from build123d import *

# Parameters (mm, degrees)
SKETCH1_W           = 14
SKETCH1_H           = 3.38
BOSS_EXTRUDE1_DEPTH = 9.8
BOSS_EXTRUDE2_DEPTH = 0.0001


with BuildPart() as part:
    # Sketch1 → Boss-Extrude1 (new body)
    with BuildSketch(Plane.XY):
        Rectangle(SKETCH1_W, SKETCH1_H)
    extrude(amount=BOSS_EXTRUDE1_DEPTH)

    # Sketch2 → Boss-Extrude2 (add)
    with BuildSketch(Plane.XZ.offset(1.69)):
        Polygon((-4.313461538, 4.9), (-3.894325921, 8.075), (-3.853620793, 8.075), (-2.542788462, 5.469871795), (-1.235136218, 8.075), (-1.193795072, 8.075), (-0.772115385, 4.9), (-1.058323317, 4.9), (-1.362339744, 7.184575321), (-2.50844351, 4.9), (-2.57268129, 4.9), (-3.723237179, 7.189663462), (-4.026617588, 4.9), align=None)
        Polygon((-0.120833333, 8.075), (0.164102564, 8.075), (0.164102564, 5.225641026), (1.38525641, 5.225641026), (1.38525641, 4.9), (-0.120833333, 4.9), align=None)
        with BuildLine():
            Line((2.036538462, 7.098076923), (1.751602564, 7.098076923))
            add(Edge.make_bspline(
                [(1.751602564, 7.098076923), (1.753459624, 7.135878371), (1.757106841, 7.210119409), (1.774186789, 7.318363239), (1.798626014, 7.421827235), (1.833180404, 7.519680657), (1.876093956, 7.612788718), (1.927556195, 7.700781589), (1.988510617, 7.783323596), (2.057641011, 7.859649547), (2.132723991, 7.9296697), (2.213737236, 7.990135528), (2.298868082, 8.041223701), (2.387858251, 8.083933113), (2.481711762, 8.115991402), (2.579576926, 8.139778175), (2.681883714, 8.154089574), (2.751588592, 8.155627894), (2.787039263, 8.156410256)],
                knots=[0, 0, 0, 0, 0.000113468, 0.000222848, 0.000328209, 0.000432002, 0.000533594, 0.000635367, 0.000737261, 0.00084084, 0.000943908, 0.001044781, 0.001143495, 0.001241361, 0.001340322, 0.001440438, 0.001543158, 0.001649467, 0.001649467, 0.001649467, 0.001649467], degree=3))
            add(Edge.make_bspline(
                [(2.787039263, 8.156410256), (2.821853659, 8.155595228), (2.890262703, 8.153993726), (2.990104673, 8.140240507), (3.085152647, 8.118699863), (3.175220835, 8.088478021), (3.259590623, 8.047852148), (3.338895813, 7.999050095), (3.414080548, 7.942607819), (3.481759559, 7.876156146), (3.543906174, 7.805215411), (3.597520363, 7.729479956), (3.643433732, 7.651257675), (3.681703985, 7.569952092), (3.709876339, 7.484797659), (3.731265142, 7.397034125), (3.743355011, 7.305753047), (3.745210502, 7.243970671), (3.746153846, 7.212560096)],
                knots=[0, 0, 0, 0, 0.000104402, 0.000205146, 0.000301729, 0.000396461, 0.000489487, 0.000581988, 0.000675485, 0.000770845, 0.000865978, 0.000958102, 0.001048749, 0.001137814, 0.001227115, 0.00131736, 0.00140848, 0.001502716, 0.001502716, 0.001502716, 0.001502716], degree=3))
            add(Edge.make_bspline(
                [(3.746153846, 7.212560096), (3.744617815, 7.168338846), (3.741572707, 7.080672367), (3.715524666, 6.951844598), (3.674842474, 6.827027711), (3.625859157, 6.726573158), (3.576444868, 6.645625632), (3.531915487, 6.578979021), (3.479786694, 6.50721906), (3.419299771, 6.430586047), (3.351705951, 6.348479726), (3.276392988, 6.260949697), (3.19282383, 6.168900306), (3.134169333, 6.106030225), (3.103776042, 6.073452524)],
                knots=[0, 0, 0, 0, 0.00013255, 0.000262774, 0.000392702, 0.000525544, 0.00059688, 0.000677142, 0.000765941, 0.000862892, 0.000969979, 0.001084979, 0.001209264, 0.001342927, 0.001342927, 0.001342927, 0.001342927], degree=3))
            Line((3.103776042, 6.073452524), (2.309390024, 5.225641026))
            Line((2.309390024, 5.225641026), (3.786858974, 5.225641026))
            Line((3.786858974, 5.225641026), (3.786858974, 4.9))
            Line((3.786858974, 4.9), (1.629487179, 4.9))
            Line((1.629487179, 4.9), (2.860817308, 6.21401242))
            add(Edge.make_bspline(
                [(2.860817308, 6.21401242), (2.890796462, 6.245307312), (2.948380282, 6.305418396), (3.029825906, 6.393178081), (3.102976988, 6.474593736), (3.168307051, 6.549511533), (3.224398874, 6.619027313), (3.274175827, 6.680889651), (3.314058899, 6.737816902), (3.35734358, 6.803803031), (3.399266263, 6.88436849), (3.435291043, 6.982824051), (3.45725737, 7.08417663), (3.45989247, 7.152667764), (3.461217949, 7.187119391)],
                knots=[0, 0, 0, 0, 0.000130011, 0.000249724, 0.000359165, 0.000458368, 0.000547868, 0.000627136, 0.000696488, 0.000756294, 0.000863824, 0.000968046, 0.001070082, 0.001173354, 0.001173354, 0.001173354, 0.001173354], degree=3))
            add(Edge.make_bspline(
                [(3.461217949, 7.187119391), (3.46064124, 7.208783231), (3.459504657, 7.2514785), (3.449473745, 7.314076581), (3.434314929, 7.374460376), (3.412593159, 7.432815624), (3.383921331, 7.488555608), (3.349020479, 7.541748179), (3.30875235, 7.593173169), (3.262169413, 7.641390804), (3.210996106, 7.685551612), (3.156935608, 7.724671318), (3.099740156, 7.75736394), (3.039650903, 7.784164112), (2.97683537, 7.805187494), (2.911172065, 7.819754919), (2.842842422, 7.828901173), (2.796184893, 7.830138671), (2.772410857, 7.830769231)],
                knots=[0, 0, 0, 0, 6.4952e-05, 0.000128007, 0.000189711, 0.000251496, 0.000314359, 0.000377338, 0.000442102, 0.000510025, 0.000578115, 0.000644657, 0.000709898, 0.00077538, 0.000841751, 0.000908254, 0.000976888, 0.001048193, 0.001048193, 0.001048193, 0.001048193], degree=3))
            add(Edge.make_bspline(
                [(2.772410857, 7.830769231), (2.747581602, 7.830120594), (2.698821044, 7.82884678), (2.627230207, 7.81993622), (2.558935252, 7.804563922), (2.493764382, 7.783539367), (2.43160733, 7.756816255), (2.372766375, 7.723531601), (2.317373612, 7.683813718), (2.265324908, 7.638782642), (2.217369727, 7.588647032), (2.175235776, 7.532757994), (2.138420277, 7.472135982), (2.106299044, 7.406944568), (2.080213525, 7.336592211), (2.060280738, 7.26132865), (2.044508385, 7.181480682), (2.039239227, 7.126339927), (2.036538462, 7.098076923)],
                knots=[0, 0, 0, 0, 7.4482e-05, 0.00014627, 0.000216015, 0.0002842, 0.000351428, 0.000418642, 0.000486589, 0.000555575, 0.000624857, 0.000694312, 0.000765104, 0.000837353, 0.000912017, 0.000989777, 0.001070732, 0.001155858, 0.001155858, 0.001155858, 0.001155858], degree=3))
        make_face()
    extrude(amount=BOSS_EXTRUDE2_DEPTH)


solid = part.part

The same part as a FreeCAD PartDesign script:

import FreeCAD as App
import Part
import Sketcher
from FreeCAD import Vector
Q = App.Units.Quantity

doc = App.newDocument("Part")
body = doc.addObject("PartDesign::Body", "Body")

# Sketch on XY plane
sketch1 = body.newObject("Sketcher::SketchObject", "Sketch")
sketch1.AttachmentSupport = (doc.getObject("XY_Plane"), [""])
sketch1.MapMode = "FlatFace"
sketch1.addGeometry(Part.LineSegment(Vector(-7, 1.7, 0), Vector(-7, -1.7, 0)), False)
sketch1.addGeometry(Part.LineSegment(Vector(-7, -1.7, 0), Vector(7, -1.7, 0)), False)
sketch1.addGeometry(Part.LineSegment(Vector(7, -1.7, 0), Vector(7, 1.7, 0)), False)
sketch1.addGeometry(Part.LineSegment(Vector(7, 1.7, 0), Vector(-7, 1.7, 0)), False)
sketch1.addConstraint(Sketcher.Constraint("Coincident", 0, 2, 1, 1))
sketch1.addConstraint(Sketcher.Constraint("Coincident", 1, 2, 2, 1))
sketch1.addConstraint(Sketcher.Constraint("Coincident", 2, 2, 3, 1))
sketch1.addConstraint(Sketcher.Constraint("Coincident", 3, 2, 0, 1))
sketch1.addConstraint(Sketcher.Constraint("Vertical", 0))
sketch1.addConstraint(Sketcher.Constraint("Horizontal", 1))
sketch1.addConstraint(Sketcher.Constraint("Vertical", 2))
sketch1.addConstraint(Sketcher.Constraint("Horizontal", 3))
sketch1.addConstraint(Sketcher.Constraint("Symmetric", 0, 2, 2, 2, -1, 1))
sketch1.addConstraint(Sketcher.Constraint("DistanceX", 1, 1, 1, 2, Q("14 mm")))
sketch1.addConstraint(Sketcher.Constraint("DistanceY", 0, 2, 0, 1, Q("3.38 mm")))
pad1 = body.newObject("PartDesign::Pad", "Pad")
pad1.Profile = sketch1
pad1.Length = 9.8

# Sketch on XZ plane
sketch2 = body.newObject("Sketcher::SketchObject", "Sketch001")
sketch2.AttachmentSupport = (doc.getObject("XZ_Plane"), [""])
sketch2.MapMode = "FlatFace"
sketch2.AttachmentOffset = App.Placement(Vector(0, 0, 1.69), App.Rotation())
sketch2.addGeometry(Part.LineSegment(Vector(-3.894326, 8.075, 0), Vector(-4.313462, 4.9, 0)), False)
sketch2.addGeometry(Part.LineSegment(Vector(-4.313462, 4.9, 0), Vector(-4.026618, 4.9, 0)), False)
sketch2.addGeometry(Part.LineSegment(Vector(-4.026618, 4.9, 0), Vector(-3.723237, 7.189663, 0)), False)
sketch2.addGeometry(Part.LineSegment(Vector(-3.723237, 7.189663, 0), Vector(-2.572681, 4.9, 0)), False)
sketch2.addGeometry(Part.LineSegment(Vector(-2.572681, 4.9, 0), Vector(-2.508444, 4.9, 0)), False)
sketch2.addGeometry(Part.LineSegment(Vector(-2.508444, 4.9, 0), Vector(-1.36234, 7.184575, 0)), False)
sketch2.addGeometry(Part.LineSegment(Vector(-1.36234, 7.184575, 0), Vector(-1.058323, 4.9, 0)), False)
sketch2.addGeometry(Part.LineSegment(Vector(-1.058323, 4.9, 0), Vector(-0.772115, 4.9, 0)), False)
sketch2.addGeometry(Part.LineSegment(Vector(-0.772115, 4.9, 0), Vector(-1.193795, 8.075, 0)), False)
sketch2.addGeometry(Part.LineSegment(Vector(-1.193795, 8.075, 0), Vector(-1.235136, 8.075, 0)), False)
sketch2.addGeometry(Part.LineSegment(Vector(-1.235136, 8.075, 0), Vector(-2.542788, 5.469872, 0)), False)
sketch2.addGeometry(Part.LineSegment(Vector(-2.542788, 5.469872, 0), Vector(-3.853621, 8.075, 0)), False)
sketch2.addGeometry(Part.LineSegment(Vector(-3.853621, 8.075, 0), Vector(-3.894326, 8.075, 0)), False)
sketch2.addGeometry(Part.LineSegment(Vector(0.164103, 8.075, 0), Vector(-0.120833, 8.075, 0)), False)
sketch2.addGeometry(Part.LineSegment(Vector(-0.120833, 8.075, 0), Vector(-0.120833, 4.9, 0)), False)
sketch2.addGeometry(Part.LineSegment(Vector(-0.120833, 4.9, 0), Vector(1.385256, 4.9, 0)), False)
sketch2.addGeometry(Part.LineSegment(Vector(1.385256, 4.9, 0), Vector(1.385256, 5.225641, 0)), False)
sketch2.addGeometry(Part.LineSegment(Vector(1.385256, 5.225641, 0), Vector(0.164103, 5.225641, 0)), False)
sketch2.addGeometry(Part.LineSegment(Vector(0.164103, 5.225641, 0), Vector(0.164103, 8.075, 0)), False)
sketch2.addGeometry(Part.LineSegment(Vector(1.751603, 7.098077, 0), Vector(2.036538, 7.098077, 0)), False)
sketch2.addGeometry(Part.BSplineCurve([Vector(2.772411, 7.830769, 0), Vector(2.747582, 7.830121, 0), Vector(2.698821, 7.828847, 0), Vector(2.62723, 7.819936, 0), Vector(2.558935, 7.804564, 0), Vector(2.493764, 7.783539, 0), Vector(2.431607, 7.756816, 0), Vector(2.372766, 7.723532, 0), Vector(2.317374, 7.683814, 0), Vector(2.265325, 7.638783, 0), Vector(2.21737, 7.588647, 0), Vector(2.175236, 7.532758, 0), Vector(2.13842, 7.472136, 0), Vector(2.106299, 7.406945, 0), Vector(2.080214, 7.336592, 0), Vector(2.060281, 7.261329, 0), Vector(2.044508, 7.181481, 0), Vector(2.039239, 7.12634, 0), Vector(2.036538, 7.098077, 0)], [4, 1, 1, 1, 1, 1, 1, 1, 1, 1, 1, 1, 1, 1, 1, 1, 4], [0, 0.000074482, 0.00014627, 0.000216015, 0.0002842, 0.000351428, 0.000418642, 0.000486589, 0.000555575, 0.000624857, 0.000694312, 0.000765104, 0.000837353, 0.000912017, 0.000989777, 0.001070732, 0.001155858], False, 3, [1, 1, 1, 1, 1, 1, 1, 1, 1, 1, 1, 1, 1, 1, 1, 1, 1, 1, 1], False), False)
sketch2.addGeometry(Part.BSplineCurve([Vector(3.461218, 7.187119, 0), Vector(3.460641, 7.208783, 0), Vector(3.459505, 7.251479, 0), Vector(3.449474, 7.314077, 0), Vector(3.434315, 7.37446, 0), Vector(3.412593, 7.432816, 0), Vector(3.383921, 7.488556, 0), Vector(3.34902, 7.541748, 0), Vector(3.308752, 7.593173, 0), Vector(3.262169, 7.641391, 0), Vector(3.210996, 7.685552, 0), Vector(3.156936, 7.724671, 0), Vector(3.09974, 7.757364, 0), Vector(3.039651, 7.784164, 0), Vector(2.976835, 7.805187, 0), Vector(2.911172, 7.819755, 0), Vector(2.842842, 7.828901, 0), Vector(2.796185, 7.830139, 0), Vector(2.772411, 7.830769, 0)], [4, 1, 1, 1, 1, 1, 1, 1, 1, 1, 1, 1, 1, 1, 1, 1, 4], [0, 0.000064952, 0.000128007, 0.000189711, 0.000251496, 0.000314359, 0.000377338, 0.000442102, 0.000510025, 0.000578115, 0.000644657, 0.000709898, 0.00077538, 0.000841751, 0.000908254, 0.000976888, 0.001048193], False, 3, [1, 1, 1, 1, 1, 1, 1, 1, 1, 1, 1, 1, 1, 1, 1, 1, 1, 1, 1], False), False)
sketch2.addGeometry(Part.BSplineCurve([Vector(2.860817, 6.214012, 0), Vector(2.890796, 6.245307, 0), Vector(2.94838, 6.305418, 0), Vector(3.029826, 6.393178, 0), Vector(3.102977, 6.474594, 0), Vector(3.168307, 6.549512, 0), Vector(3.224399, 6.619027, 0), Vector(3.274176, 6.68089, 0), Vector(3.314059, 6.737817, 0), Vector(3.357344, 6.803803, 0), Vector(3.399266, 6.884368, 0), Vector(3.435291, 6.982824, 0), Vector(3.457257, 7.084177, 0), Vector(3.459892, 7.152668, 0), Vector(3.461218, 7.187119, 0)], [4, 1, 1, 1, 1, 1, 1, 1, 1, 1, 1, 1, 4], [0, 0.000130011, 0.000249724, 0.000359165, 0.000458368, 0.000547868, 0.000627136, 0.000696488, 0.000756294, 0.000863824, 0.000968046, 0.001070082, 0.001173354], False, 3, [1, 1, 1, 1, 1, 1, 1, 1, 1, 1, 1, 1, 1, 1, 1], False), False)
sketch2.addGeometry(Part.LineSegment(Vector(2.860817, 6.214012, 0), Vector(1.629487, 4.9, 0)), False)
sketch2.addGeometry(Part.LineSegment(Vector(1.629487, 4.9, 0), Vector(3.786859, 4.9, 0)), False)
sketch2.addGeometry(Part.LineSegment(Vector(3.786859, 4.9, 0), Vector(3.786859, 5.225641, 0)), False)
sketch2.addGeometry(Part.LineSegment(Vector(3.786859, 5.225641, 0), Vector(2.30939, 5.225641, 0)), False)
sketch2.addGeometry(Part.LineSegment(Vector(2.30939, 5.225641, 0), Vector(3.103776, 6.073453, 0)), False)
sketch2.addGeometry(Part.BSplineCurve([Vector(3.746154, 7.21256, 0), Vector(3.744618, 7.168339, 0), Vector(3.741573, 7.080672, 0), Vector(3.715525, 6.951845, 0), Vector(3.674842, 6.827028, 0), Vector(3.625859, 6.726573, 0), Vector(3.576445, 6.645626, 0), Vector(3.531915, 6.578979, 0), Vector(3.479787, 6.507219, 0), Vector(3.4193, 6.430586, 0), Vector(3.351706, 6.34848, 0), Vector(3.276393, 6.26095, 0), Vector(3.192824, 6.1689, 0), Vector(3.134169, 6.10603, 0), Vector(3.103776, 6.073453, 0)], [4, 1, 1, 1, 1, 1, 1, 1, 1, 1, 1, 1, 4], [0, 0.00013255, 0.000262774, 0.000392702, 0.000525544, 0.00059688, 0.000677142, 0.000765941, 0.000862892, 0.000969979, 0.001084979, 0.001209264, 0.001342927], False, 3, [1, 1, 1, 1, 1, 1, 1, 1, 1, 1, 1, 1, 1, 1, 1], False), False)
sketch2.addGeometry(Part.BSplineCurve([Vector(2.787039, 8.15641, 0), Vector(2.821854, 8.155595, 0), Vector(2.890263, 8.153994, 0), Vector(2.990105, 8.140241, 0), Vector(3.085153, 8.1187, 0), Vector(3.175221, 8.088478, 0), Vector(3.259591, 8.047852, 0), Vector(3.338896, 7.99905, 0), Vector(3.414081, 7.942608, 0), Vector(3.48176, 7.876156, 0), Vector(3.543906, 7.805215, 0), Vector(3.59752, 7.72948, 0), Vector(3.643434, 7.651258, 0), Vector(3.681704, 7.569952, 0), Vector(3.709876, 7.484798, 0), Vector(3.731265, 7.397034, 0), Vector(3.743355, 7.305753, 0), Vector(3.745211, 7.243971, 0), Vector(3.746154, 7.21256, 0)], [4, 1, 1, 1, 1, 1, 1, 1, 1, 1, 1, 1, 1, 1, 1, 1, 4], [0, 0.000104402, 0.000205146, 0.000301729, 0.000396461, 0.000489487, 0.000581988, 0.000675485, 0.000770845, 0.000865978, 0.000958102, 0.001048749, 0.001137814, 0.001227115, 0.00131736, 0.00140848, 0.001502716], False, 3, [1, 1, 1, 1, 1, 1, 1, 1, 1, 1, 1, 1, 1, 1, 1, 1, 1, 1, 1], False), False)
sketch2.addGeometry(Part.BSplineCurve([Vector(1.751603, 7.098077, 0), Vector(1.75346, 7.135878, 0), Vector(1.757107, 7.210119, 0), Vector(1.774187, 7.318363, 0), Vector(1.798626, 7.421827, 0), Vector(1.83318, 7.519681, 0), Vector(1.876094, 7.612789, 0), Vector(1.927556, 7.700782, 0), Vector(1.988511, 7.783324, 0), Vector(2.057641, 7.85965, 0), Vector(2.132724, 7.92967, 0), Vector(2.213737, 7.990136, 0), Vector(2.298868, 8.041224, 0), Vector(2.387858, 8.083933, 0), Vector(2.481712, 8.115991, 0), Vector(2.579577, 8.139778, 0), Vector(2.681884, 8.15409, 0), Vector(2.751589, 8.155628, 0), Vector(2.787039, 8.15641, 0)], [4, 1, 1, 1, 1, 1, 1, 1, 1, 1, 1, 1, 1, 1, 1, 1, 4], [0, 0.000113468, 0.000222848, 0.000328209, 0.000432002, 0.000533594, 0.000635367, 0.000737261, 0.00084084, 0.000943908, 0.001044781, 0.001143495, 0.001241361, 0.001340322, 0.001440438, 0.001543158, 0.001649467], False, 3, [1, 1, 1, 1, 1, 1, 1, 1, 1, 1, 1, 1, 1, 1, 1, 1, 1, 1, 1], False), False)
sketch2.addConstraint(Sketcher.Constraint("Block", 20))
sketch2.addConstraint(Sketcher.Constraint("Block", 21))
sketch2.addConstraint(Sketcher.Constraint("Block", 22))
sketch2.addConstraint(Sketcher.Constraint("Block", 28))
sketch2.addConstraint(Sketcher.Constraint("Block", 29))
sketch2.addConstraint(Sketcher.Constraint("Block", 30))
sketch2.addConstraint(Sketcher.Constraint("Coincident", 0, 2, 1, 1))
sketch2.addConstraint(Sketcher.Constraint("Coincident", 1, 2, 2, 1))
sketch2.addConstraint(Sketcher.Constraint("Coincident", 2, 2, 3, 1))
sketch2.addConstraint(Sketcher.Constraint("Coincident", 3, 2, 4, 1))
sketch2.addConstraint(Sketcher.Constraint("Coincident", 4, 2, 5, 1))
sketch2.addConstraint(Sketcher.Constraint("Coincident", 5, 2, 6, 1))
sketch2.addConstraint(Sketcher.Constraint("Coincident", 6, 2, 7, 1))
sketch2.addConstraint(Sketcher.Constraint("Coincident", 7, 2, 8, 1))
sketch2.addConstraint(Sketcher.Constraint("Coincident", 8, 2, 9, 1))
sketch2.addConstraint(Sketcher.Constraint("Coincident", 9, 2, 10, 1))
sketch2.addConstraint(Sketcher.Constraint("Coincident", 10, 2, 11, 1))
sketch2.addConstraint(Sketcher.Constraint("Coincident", 11, 2, 12, 1))
sketch2.addConstraint(Sketcher.Constraint("Coincident", 12, 2, 0, 1))
sketch2.addConstraint(Sketcher.Constraint("Coincident", 13, 2, 14, 1))
sketch2.addConstraint(Sketcher.Constraint("Coincident", 14, 2, 15, 1))
sketch2.addConstraint(Sketcher.Constraint("Coincident", 15, 2, 16, 1))
sketch2.addConstraint(Sketcher.Constraint("Coincident", 16, 2, 17, 1))
sketch2.addConstraint(Sketcher.Constraint("Coincident", 17, 2, 18, 1))
sketch2.addConstraint(Sketcher.Constraint("Coincident", 18, 2, 13, 1))
sketch2.addConstraint(Sketcher.Constraint("Coincident", 19, 2, 20, 2))
sketch2.addConstraint(Sketcher.Constraint("Coincident", 22, 1, 23, 1))
sketch2.addConstraint(Sketcher.Constraint("Coincident", 23, 2, 24, 1))
sketch2.addConstraint(Sketcher.Constraint("Coincident", 24, 2, 25, 1))
sketch2.addConstraint(Sketcher.Constraint("Coincident", 25, 2, 26, 1))
sketch2.addConstraint(Sketcher.Constraint("Coincident", 26, 2, 27, 1))
sketch2.addConstraint(Sketcher.Constraint("Coincident", 27, 2, 28, 2))
sketch2.addConstraint(Sketcher.Constraint("Coincident", 30, 1, 19, 1))
sketch2.addConstraint(Sketcher.Constraint("Horizontal", 1))
sketch2.addConstraint(Sketcher.Constraint("Horizontal", 4))
sketch2.addConstraint(Sketcher.Constraint("Horizontal", 7))
sketch2.addConstraint(Sketcher.Constraint("Horizontal", 9))
sketch2.addConstraint(Sketcher.Constraint("Horizontal", 12))
sketch2.addConstraint(Sketcher.Constraint("Horizontal", 13))
sketch2.addConstraint(Sketcher.Constraint("Vertical", 14))
sketch2.addConstraint(Sketcher.Constraint("Horizontal", 15))
sketch2.addConstraint(Sketcher.Constraint("Vertical", 16))
sketch2.addConstraint(Sketcher.Constraint("Horizontal", 17))
sketch2.addConstraint(Sketcher.Constraint("Vertical", 18))
sketch2.addConstraint(Sketcher.Constraint("Horizontal", 24))
sketch2.addConstraint(Sketcher.Constraint("Vertical", 25))
sketch2.addConstraint(Sketcher.Constraint("Horizontal", 26))
sketch2.addConstraint(Sketcher.Constraint("Horizontal", 1, 2, 3, 2))
sketch2.addConstraint(Sketcher.Constraint("Horizontal", 4, 2, 6, 2))
sketch2.addConstraint(Sketcher.Constraint("Horizontal", 9, 2, 11, 2))
sketch2.addConstraint(Sketcher.Constraint("Horizontal", 12, 2, 13, 2))
sketch2.addConstraint(Sketcher.Constraint("Horizontal", 7, 2, 14, 2))
sketch2.addConstraint(Sketcher.Constraint("Horizontal", 15, 2, 23, 2))
sketch2.addConstraint(Sketcher.Constraint("Horizontal", 17, 2, 25, 2))
sketch2.addConstraint(Sketcher.Constraint("Equal", 13, 19))
sketch2.addConstraint(Sketcher.Constraint("DistanceY", -1, 1, 0, 2, Q("4.9 mm")))
sketch2.addConstraint(Sketcher.Constraint("Angle", 6, Q("-82.419985 deg")))
sketch2.addConstraint(Sketcher.Constraint("DistanceY", 14, 2, 14, 1, Q("3.175 mm")))
sketch2.addConstraint(Sketcher.Constraint("Distance", 10, Q("2.914901 mm")))
sketch2.addConstraint(Sketcher.Constraint("DistanceX", 9, 2, 9, 1, Q("0.041341 mm")))
sketch2.addConstraint(Sketcher.Constraint("DistanceX", 15, 1, 15, 2, Q("1.50609 mm")))
sketch2.addConstraint(Sketcher.Constraint("DistanceX", 24, 1, 24, 2, Q("2.157372 mm")))
sketch2.addConstraint(Sketcher.Constraint("DistanceX", 26, 2, 26, 1, Q("1.477469 mm")))
sketch2.addConstraint(Sketcher.Constraint("DistanceY", 16, 1, 16, 2, Q("0.325641 mm")))
sketch2.addConstraint(Sketcher.Constraint("DistanceX", 2, 2, 9, 2, Q("2.488101 mm")))
sketch2.addConstraint(Sketcher.Constraint("Distance", 5, Q("2.555942 mm")))
sketch2.addConstraint(Sketcher.Constraint("Distance", 8, Q("3.20288 mm")))
sketch2.addConstraint(Sketcher.Constraint("Distance", 11, Q("2.916329 mm")))
sketch2.addConstraint(Sketcher.Constraint("Distance", 23, Q("1.800778 mm")))
sketch2.addConstraint(Sketcher.Constraint("DistanceX", 1, 1, 1, 2, Q("0.286844 mm")))
sketch2.addConstraint(Sketcher.Constraint("DistanceX", 4, 1, 4, 2, Q("0.064238 mm")))
sketch2.addConstraint(Sketcher.Constraint("DistanceX", 7, 1, 7, 2, Q("0.286208 mm")))
sketch2.addConstraint(Sketcher.Constraint("DistanceX", 12, 2, 12, 1, Q("0.040705 mm")))
sketch2.addConstraint(Sketcher.Constraint("DistanceX", 0, 2, -1, 1, Q("4.313462 mm")))
sketch2.addConstraint(Sketcher.Constraint("DistanceX", 3, 2, -1, 1, Q("2.572681 mm")))
sketch2.addConstraint(Sketcher.Constraint("DistanceX", 5, 2, -1, 1, Q("1.36234 mm")))
sketch2.addConstraint(Sketcher.Constraint("DistanceX", 10, 2, -1, 1, Q("2.542788 mm")))
sketch2.addConstraint(Sketcher.Constraint("DistanceY", 5, 2, 2, 2, Q("0.005088 mm")))
sketch2.addConstraint(Sketcher.Constraint("DistanceX", 8, 2, 13, 2, Q("1.072962 mm")))
pad2 = body.newObject("PartDesign::Pad", "Pad001")
pad2.Profile = sketch2
pad2.Length = 0.0001

doc.recompute()
